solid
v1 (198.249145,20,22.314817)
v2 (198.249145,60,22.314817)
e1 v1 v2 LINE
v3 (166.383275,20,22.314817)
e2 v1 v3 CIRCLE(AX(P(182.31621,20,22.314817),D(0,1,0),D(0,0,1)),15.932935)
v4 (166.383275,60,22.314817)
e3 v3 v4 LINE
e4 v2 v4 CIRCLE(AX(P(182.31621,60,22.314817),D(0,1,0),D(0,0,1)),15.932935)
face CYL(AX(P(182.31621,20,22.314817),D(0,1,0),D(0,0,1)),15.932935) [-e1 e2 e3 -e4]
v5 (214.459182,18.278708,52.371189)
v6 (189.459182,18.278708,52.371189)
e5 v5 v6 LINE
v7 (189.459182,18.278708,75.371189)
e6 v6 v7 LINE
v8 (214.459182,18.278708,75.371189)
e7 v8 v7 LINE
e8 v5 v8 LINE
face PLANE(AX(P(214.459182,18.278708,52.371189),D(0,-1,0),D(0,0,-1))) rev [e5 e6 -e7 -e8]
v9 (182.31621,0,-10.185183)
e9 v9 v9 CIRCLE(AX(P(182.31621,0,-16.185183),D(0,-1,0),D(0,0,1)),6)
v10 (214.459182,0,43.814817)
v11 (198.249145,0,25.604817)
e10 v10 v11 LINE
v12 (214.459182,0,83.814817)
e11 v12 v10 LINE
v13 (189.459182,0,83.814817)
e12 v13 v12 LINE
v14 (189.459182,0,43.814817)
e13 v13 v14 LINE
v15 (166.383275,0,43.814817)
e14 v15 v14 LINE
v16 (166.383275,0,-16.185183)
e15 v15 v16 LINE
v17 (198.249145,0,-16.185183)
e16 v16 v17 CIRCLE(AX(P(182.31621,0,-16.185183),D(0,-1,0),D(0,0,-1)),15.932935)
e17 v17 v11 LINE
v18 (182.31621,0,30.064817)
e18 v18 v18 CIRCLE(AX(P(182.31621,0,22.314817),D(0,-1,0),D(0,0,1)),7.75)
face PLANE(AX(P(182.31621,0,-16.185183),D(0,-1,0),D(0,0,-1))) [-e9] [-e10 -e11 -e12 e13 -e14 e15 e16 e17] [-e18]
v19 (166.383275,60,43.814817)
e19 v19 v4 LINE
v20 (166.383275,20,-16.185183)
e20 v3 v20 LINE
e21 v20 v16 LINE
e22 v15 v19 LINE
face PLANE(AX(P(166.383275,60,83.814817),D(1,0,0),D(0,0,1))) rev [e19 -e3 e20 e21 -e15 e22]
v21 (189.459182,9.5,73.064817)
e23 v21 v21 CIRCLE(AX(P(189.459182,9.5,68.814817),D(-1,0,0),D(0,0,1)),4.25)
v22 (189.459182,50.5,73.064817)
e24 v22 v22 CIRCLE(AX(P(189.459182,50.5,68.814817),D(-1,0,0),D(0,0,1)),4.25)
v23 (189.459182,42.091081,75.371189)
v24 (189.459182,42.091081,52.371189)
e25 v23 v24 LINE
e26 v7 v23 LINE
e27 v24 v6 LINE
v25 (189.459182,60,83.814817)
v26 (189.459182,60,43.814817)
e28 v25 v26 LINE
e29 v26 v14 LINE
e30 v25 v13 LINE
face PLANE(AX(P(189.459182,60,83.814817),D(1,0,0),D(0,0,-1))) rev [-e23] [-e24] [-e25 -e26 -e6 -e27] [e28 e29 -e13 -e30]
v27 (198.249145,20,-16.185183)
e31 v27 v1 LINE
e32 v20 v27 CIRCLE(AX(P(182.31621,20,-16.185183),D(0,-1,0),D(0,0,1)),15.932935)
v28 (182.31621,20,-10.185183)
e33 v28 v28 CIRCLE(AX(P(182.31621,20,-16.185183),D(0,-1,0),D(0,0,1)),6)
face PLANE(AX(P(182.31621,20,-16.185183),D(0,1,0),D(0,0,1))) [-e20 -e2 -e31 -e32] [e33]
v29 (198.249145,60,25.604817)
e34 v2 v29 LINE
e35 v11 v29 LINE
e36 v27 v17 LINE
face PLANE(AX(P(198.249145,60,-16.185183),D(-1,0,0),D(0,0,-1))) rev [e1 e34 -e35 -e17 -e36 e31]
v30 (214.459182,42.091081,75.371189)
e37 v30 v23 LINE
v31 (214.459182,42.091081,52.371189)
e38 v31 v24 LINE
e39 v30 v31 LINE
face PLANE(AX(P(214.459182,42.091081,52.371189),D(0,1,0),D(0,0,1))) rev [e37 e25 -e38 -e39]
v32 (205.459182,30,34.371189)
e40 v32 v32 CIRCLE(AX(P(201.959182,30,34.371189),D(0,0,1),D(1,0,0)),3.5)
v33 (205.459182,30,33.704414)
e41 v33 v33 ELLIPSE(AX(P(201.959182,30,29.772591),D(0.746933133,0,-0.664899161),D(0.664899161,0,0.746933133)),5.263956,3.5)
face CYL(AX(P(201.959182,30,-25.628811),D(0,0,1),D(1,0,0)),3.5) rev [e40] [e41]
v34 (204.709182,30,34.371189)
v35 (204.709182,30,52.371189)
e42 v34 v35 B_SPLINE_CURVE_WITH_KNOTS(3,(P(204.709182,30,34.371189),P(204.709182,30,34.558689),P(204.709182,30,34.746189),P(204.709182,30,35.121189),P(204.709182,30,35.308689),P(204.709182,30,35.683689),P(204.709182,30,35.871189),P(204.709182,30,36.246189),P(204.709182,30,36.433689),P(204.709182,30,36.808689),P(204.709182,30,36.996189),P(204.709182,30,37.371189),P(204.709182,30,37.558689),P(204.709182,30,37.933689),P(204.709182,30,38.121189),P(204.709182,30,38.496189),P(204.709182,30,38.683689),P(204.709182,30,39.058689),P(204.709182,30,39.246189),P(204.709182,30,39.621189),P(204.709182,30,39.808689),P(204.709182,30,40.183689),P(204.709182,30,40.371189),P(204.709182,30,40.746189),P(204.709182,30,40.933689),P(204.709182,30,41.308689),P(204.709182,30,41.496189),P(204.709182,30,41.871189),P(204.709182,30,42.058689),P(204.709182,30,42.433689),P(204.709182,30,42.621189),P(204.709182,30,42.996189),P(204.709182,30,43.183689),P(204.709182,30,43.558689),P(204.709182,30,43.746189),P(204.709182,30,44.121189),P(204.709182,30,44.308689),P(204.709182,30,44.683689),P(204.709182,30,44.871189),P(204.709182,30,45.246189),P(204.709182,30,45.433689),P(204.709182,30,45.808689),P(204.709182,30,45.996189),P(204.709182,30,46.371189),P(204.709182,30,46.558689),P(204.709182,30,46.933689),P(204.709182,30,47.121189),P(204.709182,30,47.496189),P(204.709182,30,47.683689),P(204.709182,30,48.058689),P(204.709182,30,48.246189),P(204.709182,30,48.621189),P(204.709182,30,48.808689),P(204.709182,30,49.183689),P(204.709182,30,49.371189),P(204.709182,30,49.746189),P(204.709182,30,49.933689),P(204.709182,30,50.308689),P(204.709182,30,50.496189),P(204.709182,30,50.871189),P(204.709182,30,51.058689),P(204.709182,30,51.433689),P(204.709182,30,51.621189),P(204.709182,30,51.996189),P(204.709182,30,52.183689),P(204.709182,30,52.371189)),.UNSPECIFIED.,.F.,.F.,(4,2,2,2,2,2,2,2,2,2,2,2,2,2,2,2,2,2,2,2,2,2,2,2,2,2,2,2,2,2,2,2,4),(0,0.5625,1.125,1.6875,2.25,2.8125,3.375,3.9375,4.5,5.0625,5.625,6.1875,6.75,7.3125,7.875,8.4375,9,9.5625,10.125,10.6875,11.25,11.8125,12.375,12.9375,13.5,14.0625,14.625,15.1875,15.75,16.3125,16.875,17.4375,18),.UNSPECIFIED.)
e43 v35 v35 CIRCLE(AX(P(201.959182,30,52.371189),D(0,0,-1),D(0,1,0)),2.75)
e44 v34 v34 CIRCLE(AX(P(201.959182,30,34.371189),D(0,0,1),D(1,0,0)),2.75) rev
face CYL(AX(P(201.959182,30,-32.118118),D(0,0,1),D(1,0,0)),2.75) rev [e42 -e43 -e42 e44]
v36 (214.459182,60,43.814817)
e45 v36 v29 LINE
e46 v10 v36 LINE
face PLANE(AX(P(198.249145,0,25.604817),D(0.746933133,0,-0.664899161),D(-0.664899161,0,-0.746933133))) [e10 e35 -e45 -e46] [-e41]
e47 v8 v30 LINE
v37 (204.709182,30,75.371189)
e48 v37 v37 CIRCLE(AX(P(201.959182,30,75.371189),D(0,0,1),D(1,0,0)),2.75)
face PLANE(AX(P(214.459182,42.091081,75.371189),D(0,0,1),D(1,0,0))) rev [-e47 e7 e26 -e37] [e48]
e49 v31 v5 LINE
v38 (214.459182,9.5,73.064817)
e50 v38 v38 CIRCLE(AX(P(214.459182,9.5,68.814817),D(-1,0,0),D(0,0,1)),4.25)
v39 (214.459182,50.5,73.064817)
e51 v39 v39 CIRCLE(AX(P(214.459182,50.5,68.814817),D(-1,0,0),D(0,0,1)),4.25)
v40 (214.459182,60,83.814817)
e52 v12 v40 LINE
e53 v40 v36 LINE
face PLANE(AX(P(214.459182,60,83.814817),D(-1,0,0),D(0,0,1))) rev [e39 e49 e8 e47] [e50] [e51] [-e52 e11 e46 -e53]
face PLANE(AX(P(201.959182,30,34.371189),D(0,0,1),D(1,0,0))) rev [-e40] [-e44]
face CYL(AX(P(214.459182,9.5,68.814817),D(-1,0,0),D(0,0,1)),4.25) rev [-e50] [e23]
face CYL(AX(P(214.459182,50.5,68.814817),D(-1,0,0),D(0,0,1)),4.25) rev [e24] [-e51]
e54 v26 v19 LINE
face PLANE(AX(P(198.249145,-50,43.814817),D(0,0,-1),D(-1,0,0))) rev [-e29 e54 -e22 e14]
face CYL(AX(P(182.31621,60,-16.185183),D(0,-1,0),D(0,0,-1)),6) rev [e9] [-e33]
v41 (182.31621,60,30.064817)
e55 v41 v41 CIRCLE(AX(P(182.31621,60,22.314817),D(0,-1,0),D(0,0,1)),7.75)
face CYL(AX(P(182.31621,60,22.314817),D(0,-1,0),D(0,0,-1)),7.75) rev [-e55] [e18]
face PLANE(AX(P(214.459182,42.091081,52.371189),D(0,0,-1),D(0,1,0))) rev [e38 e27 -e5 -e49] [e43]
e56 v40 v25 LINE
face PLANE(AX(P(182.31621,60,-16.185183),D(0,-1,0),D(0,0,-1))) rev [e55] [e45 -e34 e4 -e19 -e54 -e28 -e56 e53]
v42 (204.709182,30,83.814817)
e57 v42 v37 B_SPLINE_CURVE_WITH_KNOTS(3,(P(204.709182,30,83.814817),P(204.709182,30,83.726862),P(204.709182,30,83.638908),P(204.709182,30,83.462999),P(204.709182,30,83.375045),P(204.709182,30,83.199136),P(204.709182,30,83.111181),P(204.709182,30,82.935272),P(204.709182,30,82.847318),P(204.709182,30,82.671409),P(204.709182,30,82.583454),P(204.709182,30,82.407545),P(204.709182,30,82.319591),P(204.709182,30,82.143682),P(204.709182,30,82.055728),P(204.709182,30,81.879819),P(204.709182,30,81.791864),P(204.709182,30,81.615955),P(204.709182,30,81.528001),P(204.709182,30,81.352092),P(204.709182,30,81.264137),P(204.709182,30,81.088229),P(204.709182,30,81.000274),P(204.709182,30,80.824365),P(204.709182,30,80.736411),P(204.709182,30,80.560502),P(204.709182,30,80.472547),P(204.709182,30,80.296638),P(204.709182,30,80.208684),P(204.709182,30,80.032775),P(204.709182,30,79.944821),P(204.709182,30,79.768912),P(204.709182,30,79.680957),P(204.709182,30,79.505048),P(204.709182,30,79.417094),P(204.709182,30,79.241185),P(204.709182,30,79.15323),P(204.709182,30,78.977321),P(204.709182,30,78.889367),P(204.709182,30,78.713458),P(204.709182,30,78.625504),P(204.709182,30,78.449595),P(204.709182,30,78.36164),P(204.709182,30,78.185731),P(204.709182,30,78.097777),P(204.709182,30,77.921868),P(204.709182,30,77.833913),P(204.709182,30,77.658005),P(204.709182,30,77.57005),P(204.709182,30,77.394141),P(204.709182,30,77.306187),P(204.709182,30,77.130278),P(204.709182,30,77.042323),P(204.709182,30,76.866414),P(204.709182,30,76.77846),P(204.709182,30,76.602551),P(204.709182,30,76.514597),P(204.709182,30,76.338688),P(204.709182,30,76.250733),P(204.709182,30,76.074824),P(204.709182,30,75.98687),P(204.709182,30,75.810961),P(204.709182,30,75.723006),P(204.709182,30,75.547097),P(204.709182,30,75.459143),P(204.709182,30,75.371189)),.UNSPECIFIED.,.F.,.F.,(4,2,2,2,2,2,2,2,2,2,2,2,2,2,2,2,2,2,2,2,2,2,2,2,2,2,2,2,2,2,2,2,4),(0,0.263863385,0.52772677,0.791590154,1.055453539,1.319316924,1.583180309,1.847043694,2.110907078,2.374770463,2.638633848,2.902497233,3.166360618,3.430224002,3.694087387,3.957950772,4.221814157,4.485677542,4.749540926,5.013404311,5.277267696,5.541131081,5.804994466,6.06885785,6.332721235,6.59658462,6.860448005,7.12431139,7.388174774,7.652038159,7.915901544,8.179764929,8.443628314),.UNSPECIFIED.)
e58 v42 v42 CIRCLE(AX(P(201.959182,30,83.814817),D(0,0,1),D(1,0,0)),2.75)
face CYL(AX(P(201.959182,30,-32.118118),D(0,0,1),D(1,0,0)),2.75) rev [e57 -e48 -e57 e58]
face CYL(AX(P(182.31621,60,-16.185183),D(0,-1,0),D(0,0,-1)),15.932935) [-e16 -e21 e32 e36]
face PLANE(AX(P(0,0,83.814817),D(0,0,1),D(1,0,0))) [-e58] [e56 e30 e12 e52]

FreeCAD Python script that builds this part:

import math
import FreeCAD as App
import Part
import Sketcher
from FreeCAD import Vector
Q = App.Units.Quantity


def add_polygon(sketch, points):
    """Adds a closed chain of lines whose ends are joined by coincident constraints."""
    first, n = sketch.GeometryCount, len(points)
    for a, b in zip(points, points[1:] + points[:1]):
        sketch.addGeometry(Part.LineSegment(App.Vector(*a, 0), App.Vector(*b, 0)), False)
    for i in range(n):
        sketch.addConstraint(Sketcher.Constraint("Coincident", first + i, 2, first + (i + 1) % n, 1))

doc = App.newDocument("Part")
body = doc.addObject("PartDesign::Body", "Body")

# Sketch on XZ plane
sketch1 = body.newObject("Sketcher::SketchObject", "Sketch")
sketch1.AttachmentSupport = (doc.getObject("XZ_Plane"), [""])
sketch1.MapMode = "FlatFace"
sketch1.addGeometry([
    Part.LineSegment(Vector(75, -16, 0), Vector(75, 84, 0)),  # 0
    Part.LineSegment(Vector(75, 84, 0), Vector(106, 84, 0)),  # 1
    Part.LineSegment(Vector(106, 84, 0), Vector(106, -16, 0)),  # 2
    Part.ArcOfCircle(Part.Circle(Vector(90, -16, 0), Vector(0, 0, 1), 16), math.radians(180), math.radians(360)),  # 3
    Part.Circle(Vector(90, 22, 0), Vector(0, 0, 1), 8),  # 4
    Part.Circle(Vector(90, -16, 0), Vector(0, 0, 1), 6),  # 5
], False)
sketch1.addConstraint([
    Sketcher.Constraint("Coincident", 0, 2, 1, 1),
    Sketcher.Constraint("Coincident", 1, 2, 2, 1),
    Sketcher.Constraint("Tangent", 2, 2, 3, 2),
    Sketcher.Constraint("Tangent", 3, 1, 0, 1),
    Sketcher.Constraint("Vertical", 0),
    Sketcher.Constraint("Horizontal", 1),
    Sketcher.Constraint("Vertical", 2),
    Sketcher.Constraint("Coincident", 5, 3, 3, 3),
    Sketcher.Constraint("Vertical", 3, 3, 4, 3),
    Sketcher.Constraint("Diameter", 5, Q("12 mm")),
    Sketcher.Constraint("Diameter", 4, Q("15.5 mm")),
    Sketcher.Constraint("DistanceY", 0, 1, 0, 2, Q("100 mm")),
    Sketcher.Constraint("DistanceY", 3, 3, 4, 3, Q("38.5 mm")),
    Sketcher.Constraint("Radius", 3, Q("15.932935 mm")),
    Sketcher.Constraint("DistanceX", -1, 1, 3, 3, Q("90.450341 mm")),
    Sketcher.Constraint("DistanceY", 3, 3, -1, 1, Q("16.185183 mm")),
])
pad1 = body.newObject("PartDesign::Pad", "Pad")
pad1.Profile = sketch1
pad1.Length = 60
pad1.Reversed = True

# Sketch on XZ plane
sketch2 = body.newObject("Sketcher::SketchObject", "Sketch001")
sketch2.AttachmentSupport = (doc.getObject("XZ_Plane"), [""])
sketch2.MapMode = "FlatFace"
sketch2.AttachmentOffset = App.Placement(Vector(0, 0, -20), App.Rotation())
sketch2.addGeometry(Part.Circle(Vector(90, -16, 0), Vector(0, 0, 1), 16), False)
sketch2.addConstraint([
    Sketcher.Constraint("Diameter", 0, Q("31.865869 mm")),
    Sketcher.Constraint("DistanceX", -1, 1, 0, 3, Q("90.450341 mm")),
    Sketcher.Constraint("DistanceY", 0, 3, -1, 1, Q("16.185183 mm")),
])
pocket1 = body.newObject("PartDesign::Pocket", "Pocket")
pocket1.Profile = sketch2
pocket1.Length = 40

# Sketch on XZ plane
sketch3 = body.newObject("Sketcher::SketchObject", "Sketch002")
sketch3.AttachmentSupport = (doc.getObject("XZ_Plane"), [""])
sketch3.MapMode = "FlatFace"
sketch3.AttachmentOffset = App.Placement(Vector(0, 0, -60), App.Rotation())
sketch3.addGeometry([
    Part.LineSegment(Vector(75, -16, 0), Vector(75, 22, 0)),
    Part.ArcOfCircle(Part.Circle(Vector(90, 22, 0), Vector(0, 0, 1), 16), math.radians(180), math.radians(360)),
    Part.LineSegment(Vector(106, 22, 0), Vector(106, -16, 0)),
    Part.LineSegment(Vector(106, -16, 0), Vector(75, -16, 0)),
], False)
sketch3.addConstraint([
    Sketcher.Constraint("Tangent", 0, 2, 1, 1),
    Sketcher.Constraint("Tangent", 1, 2, 2, 1),
    Sketcher.Constraint("Coincident", 2, 2, 3, 1),
    Sketcher.Constraint("Coincident", 3, 2, 0, 1),
    Sketcher.Constraint("Vertical", 0),
    Sketcher.Constraint("Vertical", 2),
    Sketcher.Constraint("Horizontal", 3),
    Sketcher.Constraint("DistanceY", 0, 1, 0, 2, Q("38.5 mm")),
    Sketcher.Constraint("Radius", 1, Q("15.932935 mm")),
    Sketcher.Constraint("DistanceX", -1, 1, 1, 3, Q("90.450341 mm")),
    Sketcher.Constraint("DistanceY", -1, 1, 1, 3, Q("22.314817 mm")),
])
pocket2 = body.newObject("PartDesign::Pocket", "Pocket001")
pocket2.Profile = sketch3
pocket2.Length = 40
pocket2.Reversed = True

# Sketch on YZ plane
sketch4 = body.newObject("Sketcher::SketchObject", "Sketch003")
sketch4.AttachmentSupport = (doc.getObject("YZ_Plane"), [""])
sketch4.MapMode = "FlatFace"
sketch4.AttachmentOffset = App.Placement(Vector(0, 0, 74.517406), App.Rotation())
sketch4.addGeometry([
    Part.Circle(Vector(9.5, 68.8, 0), Vector(0, 0, 1), 4.2),
    Part.Circle(Vector(50.5, 68.8, 0), Vector(0, 0, 1), 4.2),
], False)
sketch4.addConstraint([
    Sketcher.Constraint("Equal", 0, 1),
    Sketcher.Constraint("Horizontal", 0, 3, 1, 3),
    Sketcher.Constraint("Diameter", 0, Q("8.5 mm")),
    Sketcher.Constraint("DistanceX", 0, 3, 1, 3, Q("41 mm")),
    Sketcher.Constraint("DistanceX", -1, 1, 0, 3, Q("9.5 mm")),
    Sketcher.Constraint("DistanceY", -1, 1, 0, 3, Q("68.814817 mm")),
])
pocket3 = body.newObject("PartDesign::Pocket", "Pocket002")
pocket3.Profile = sketch4
pocket3.Type = "ThroughAll"
pocket3.Reversed = True

# Sketch on YZ plane
sketch5 = body.newObject("Sketcher::SketchObject", "Sketch004")
sketch5.AttachmentSupport = (doc.getObject("YZ_Plane"), [""])
sketch5.MapMode = "FlatFace"
sketch5.AttachmentOffset = App.Placement(Vector(0, 0, 106.383275), App.Rotation())
add_polygon(sketch5, [(60, 83.8), (0, 83.8), (0, 53.8), (60, 53.8)])  # lines 0-3
sketch5.addGeometry(Part.Circle(Vector(9.5, 68.8, 0), Vector(0, 0, 1), 4.2), False)  # 4
sketch5.addGeometry(Part.Circle(Vector(50.5, 68.8, 0), Vector(0, 0, 1), 4.2), False)  # 5
sketch5.addConstraint([
    Sketcher.Constraint("Horizontal", 0),
    Sketcher.Constraint("Vertical", 1),
    Sketcher.Constraint("Horizontal", 2),
    Sketcher.Constraint("Vertical", 3),
    Sketcher.Constraint("Equal", 4, 5),
    Sketcher.Constraint("PointOnObject", 0, 2, -2),
    Sketcher.Constraint("Horizontal", 4, 3, 5, 3),
    Sketcher.Constraint("Diameter", 4, Q("8.5 mm")),
    Sketcher.Constraint("DistanceX", 0, 2, 0, 1, Q("60 mm")),
    Sketcher.Constraint("DistanceY", 1, 2, 1, 1, Q("30 mm")),
    Sketcher.Constraint("DistanceX", 4, 3, 5, 3, Q("41 mm")),
    Sketcher.Constraint("DistanceY", 4, 3, 0, 2, Q("15 mm")),
    Sketcher.Constraint("DistanceX", -1, 1, 4, 3, Q("9.5 mm")),
    Sketcher.Constraint("DistanceY", -1, 1, 4, 3, Q("68.814817 mm")),
])
pad2 = body.newObject("PartDesign::Pad", "Pad001")
pad2.Profile = sketch5
pad2.Length = 30
body2 = doc.addObject("PartDesign::Body", "Body001")
doc.recompute()

mirroring = doc.addObject("Part::Mirroring", "Mirroring")
mirroring.Source = body
mirroring.Base = Vector(136.383275, 0, 0)
mirroring.Normal = Vector(-1, 0, 0)
body2.BaseFeature = mirroring
doc.recompute()

# Sketch on YZ plane
sketch6 = body2.newObject("Sketcher::SketchObject", "Sketch005")
sketch6.AttachmentSupport = (doc.getObject("YZ_Plane001"), [""])
sketch6.MapMode = "FlatFace"
sketch6.AttachmentOffset = App.Placement(Vector(0, 0, 136.383275), App.Rotation())
add_polygon(sketch6, [(60, 54), (0, 54), (0, 84), (60, 84)])  # lines 0-3
sketch6.addConstraint([
    Sketcher.Constraint("Horizontal", 0),
    Sketcher.Constraint("Vertical", 1),
    Sketcher.Constraint("Horizontal", 2),
    Sketcher.Constraint("Vertical", 3),
    Sketcher.Constraint("PointOnObject", 0, 2, -2),
    Sketcher.Constraint("DistanceX", 0, 2, 0, 1, Q("60 mm")),
    Sketcher.Constraint("DistanceY", 1, 1, 1, 2, Q("30 mm")),
    Sketcher.Constraint("DistanceY", -1, 1, 0, 2, Q("53.814817 mm")),
])
pocket4 = body2.newObject("PartDesign::Pocket", "Pocket003")
pocket4.Profile = sketch6
pocket4.Length = 30
pocket4.Reversed = True

# Sketch on XZ plane
sketch7 = body2.newObject("Sketcher::SketchObject", "Sketch006")
sketch7.AttachmentSupport = (doc.getObject("XZ_Plane001"), [""])
sketch7.MapMode = "FlatFace"
sketch7.AttachmentOffset = App.Placement(Vector(0, 0, -60), App.Rotation())
add_polygon(sketch7, [(166, 44), (166, 84), (198, 84), (198, 44)])  # lines 0-3
sketch7.addConstraint([
    Sketcher.Constraint("Vertical", 0),
    Sketcher.Constraint("Horizontal", 1),
    Sketcher.Constraint("Vertical", 2),
    Sketcher.Constraint("Horizontal", 3),
    Sketcher.Constraint("DistanceY", 0, 1, 0, 2, Q("40 mm")),
    Sketcher.Constraint("DistanceX", 1, 1, 1, 2, Q("31.865869 mm")),
    Sketcher.Constraint("DistanceX", -1, 1, 0, 2, Q("166.383275 mm")),
    Sketcher.Constraint("DistanceY", -1, 1, 0, 2, Q("83.814817 mm")),
])
pocket5 = body2.newObject("PartDesign::Pocket", "Pocket004")
pocket5.Profile = sketch7
pocket5.Length = 110
pocket5.Reversed = True

# Sketch on XY plane
sketch8 = body2.newObject("Sketcher::SketchObject", "Sketch007")
sketch8.AttachmentSupport = (doc.getObject("XY_Plane001"), [""])
sketch8.MapMode = "FlatFace"
sketch8.AttachmentOffset = App.Placement(Vector(0, 0, 43.814817), App.Rotation())
add_polygon(sketch8, [(189, 60), (189, 0), (214, 0), (214, 60)])  # lines 0-3
sketch8.addConstraint([
    Sketcher.Constraint("Vertical", 0),
    Sketcher.Constraint("Horizontal", 1),
    Sketcher.Constraint("Vertical", 2),
    Sketcher.Constraint("Horizontal", 3),
    Sketcher.Constraint("PointOnObject", 0, 2, -1),
    Sketcher.Constraint("DistanceX", 1, 1, 1, 2, Q("25 mm")),
    Sketcher.Constraint("DistanceY", 0, 2, 0, 1, Q("60 mm")),
    Sketcher.Constraint("DistanceX", -1, 1, 0, 2, Q("189.459182 mm")),
])
pad3 = body2.newObject("PartDesign::Pad", "Pad002")
pad3.Profile = sketch8
pad3.Length = 40

# Sketch on XZ plane
sketch9 = body2.newObject("Sketcher::SketchObject", "Sketch008")
sketch9.AttachmentSupport = (doc.getObject("XZ_Plane001"), [""])
sketch9.MapMode = "FlatFace"
sketch9.AttachmentOffset = App.Placement(Vector(0, 0, -60), App.Rotation())
add_polygon(sketch9, [(198, 44), (214, 44), (198, 26)])  # lines 0-2
sketch9.addConstraint([
    Sketcher.Constraint("Horizontal", 0),
    Sketcher.Constraint("Vertical", 2),
    Sketcher.Constraint("DistanceY", 2, 1, 2, 2, Q("18.21 mm")),
    Sketcher.Constraint("DistanceX", 0, 1, 0, 2, Q("16.210037 mm")),
    Sketcher.Constraint("DistanceX", -1, 1, 0, 2, Q("214.459182 mm")),
    Sketcher.Constraint("DistanceY", -1, 1, 0, 2, Q("43.814817 mm")),
])
pad4 = body2.newObject("PartDesign::Pad", "Pad003")
pad4.Profile = sketch9
pad4.Length = 60

# Sketch on YZ plane
sketch10 = body2.newObject("Sketcher::SketchObject", "Sketch009")
sketch10.AttachmentSupport = (doc.getObject("YZ_Plane001"), [""])
sketch10.MapMode = "FlatFace"
sketch10.AttachmentOffset = App.Placement(Vector(0, 0, 189.459182), App.Rotation())
sketch10.addGeometry(Part.Circle(Vector(9.5, 68.8, 0), Vector(0, 0, 1), 4.2), False)  # 0
sketch10.addGeometry(Part.Circle(Vector(50.5, 68.8, 0), Vector(0, 0, 1), 4.2), False)  # 1
add_polygon(sketch10, [(42.1, 52.4), (18.3, 52.4), (18.3, 75.4), (42.1, 75.4)])  # lines 2-5
sketch10.addConstraint([
    Sketcher.Constraint("Horizontal", 2),
    Sketcher.Constraint("Vertical", 3),
    Sketcher.Constraint("Horizontal", 4),
    Sketcher.Constraint("Vertical", 5),
    Sketcher.Constraint("Equal", 0, 1),
    Sketcher.Constraint("Horizontal", 0, 3, 1, 3),
    Sketcher.Constraint("Diameter", 0, Q("8.5 mm")),
    Sketcher.Constraint("DistanceY", 3, 1, 3, 2, Q("23 mm")),
    Sketcher.Constraint("DistanceX", 0, 3, 1, 3, Q("41 mm")),
    Sketcher.Constraint("DistanceX", -1, 1, 0, 3, Q("9.5 mm")),
    Sketcher.Constraint("DistanceX", 2, 2, 2, 1, Q("23.812373 mm")),
    Sketcher.Constraint("DistanceX", -1, 1, 2, 2, Q("18.278708 mm")),
    Sketcher.Constraint("DistanceY", -1, 1, 2, 2, Q("52.371189 mm")),
    Sketcher.Constraint("DistanceY", 2, 2, 0, 3, Q("16.443628 mm")),
])
pocket6 = body2.newObject("PartDesign::Pocket", "Pocket005")
pocket6.Profile = sketch10
pocket6.Type = "ThroughAll"
pocket6.Reversed = True

# Sketch on XY plane
sketch11 = body2.newObject("Sketcher::SketchObject", "Sketch010")
sketch11.AttachmentSupport = (doc.getObject("XY_Plane001"), [""])
sketch11.MapMode = "FlatFace"
sketch11.AttachmentOffset = App.Placement(Vector(0, 0, 83.814817), App.Rotation())
sketch11.addGeometry(Part.Circle(Vector(202, 30, 0), Vector(0, 0, 1), 2.8), False)
sketch11.addConstraint([
    Sketcher.Constraint("Diameter", 0, Q("5.5 mm")),
    Sketcher.Constraint("DistanceY", -1, 1, 0, 3, Q("30 mm")),
    Sketcher.Constraint("DistanceX", -1, 1, 0, 3, Q("201.959182 mm")),
])
pocket7 = body2.newObject("PartDesign::Pocket", "Pocket006")
pocket7.Profile = sketch11
pocket7.Type = "ThroughAll"

# Sketch on XY plane
sketch12 = body2.newObject("Sketcher::SketchObject", "Sketch011")
sketch12.AttachmentSupport = (doc.getObject("XY_Plane001"), [""])
sketch12.MapMode = "FlatFace"
sketch12.AttachmentOffset = App.Placement(Vector(0, 0, 34.371189), App.Rotation())
sketch12.addGeometry(Part.Circle(Vector(202, 30, 0), Vector(0, 0, 1), 3.5), False)
sketch12.addConstraint([
    Sketcher.Constraint("Diameter", 0, Q("7 mm")),
    Sketcher.Constraint("DistanceY", -1, 1, 0, 3, Q("30 mm")),
    Sketcher.Constraint("DistanceX", -1, 1, 0, 3, Q("201.959182 mm")),
])
pocket8 = body2.newObject("PartDesign::Pocket", "Pocket007")
pocket8.Profile = sketch12
pocket8.Length = 60
body.Visibility = False
mirroring.Visibility = False

doc.recompute()
